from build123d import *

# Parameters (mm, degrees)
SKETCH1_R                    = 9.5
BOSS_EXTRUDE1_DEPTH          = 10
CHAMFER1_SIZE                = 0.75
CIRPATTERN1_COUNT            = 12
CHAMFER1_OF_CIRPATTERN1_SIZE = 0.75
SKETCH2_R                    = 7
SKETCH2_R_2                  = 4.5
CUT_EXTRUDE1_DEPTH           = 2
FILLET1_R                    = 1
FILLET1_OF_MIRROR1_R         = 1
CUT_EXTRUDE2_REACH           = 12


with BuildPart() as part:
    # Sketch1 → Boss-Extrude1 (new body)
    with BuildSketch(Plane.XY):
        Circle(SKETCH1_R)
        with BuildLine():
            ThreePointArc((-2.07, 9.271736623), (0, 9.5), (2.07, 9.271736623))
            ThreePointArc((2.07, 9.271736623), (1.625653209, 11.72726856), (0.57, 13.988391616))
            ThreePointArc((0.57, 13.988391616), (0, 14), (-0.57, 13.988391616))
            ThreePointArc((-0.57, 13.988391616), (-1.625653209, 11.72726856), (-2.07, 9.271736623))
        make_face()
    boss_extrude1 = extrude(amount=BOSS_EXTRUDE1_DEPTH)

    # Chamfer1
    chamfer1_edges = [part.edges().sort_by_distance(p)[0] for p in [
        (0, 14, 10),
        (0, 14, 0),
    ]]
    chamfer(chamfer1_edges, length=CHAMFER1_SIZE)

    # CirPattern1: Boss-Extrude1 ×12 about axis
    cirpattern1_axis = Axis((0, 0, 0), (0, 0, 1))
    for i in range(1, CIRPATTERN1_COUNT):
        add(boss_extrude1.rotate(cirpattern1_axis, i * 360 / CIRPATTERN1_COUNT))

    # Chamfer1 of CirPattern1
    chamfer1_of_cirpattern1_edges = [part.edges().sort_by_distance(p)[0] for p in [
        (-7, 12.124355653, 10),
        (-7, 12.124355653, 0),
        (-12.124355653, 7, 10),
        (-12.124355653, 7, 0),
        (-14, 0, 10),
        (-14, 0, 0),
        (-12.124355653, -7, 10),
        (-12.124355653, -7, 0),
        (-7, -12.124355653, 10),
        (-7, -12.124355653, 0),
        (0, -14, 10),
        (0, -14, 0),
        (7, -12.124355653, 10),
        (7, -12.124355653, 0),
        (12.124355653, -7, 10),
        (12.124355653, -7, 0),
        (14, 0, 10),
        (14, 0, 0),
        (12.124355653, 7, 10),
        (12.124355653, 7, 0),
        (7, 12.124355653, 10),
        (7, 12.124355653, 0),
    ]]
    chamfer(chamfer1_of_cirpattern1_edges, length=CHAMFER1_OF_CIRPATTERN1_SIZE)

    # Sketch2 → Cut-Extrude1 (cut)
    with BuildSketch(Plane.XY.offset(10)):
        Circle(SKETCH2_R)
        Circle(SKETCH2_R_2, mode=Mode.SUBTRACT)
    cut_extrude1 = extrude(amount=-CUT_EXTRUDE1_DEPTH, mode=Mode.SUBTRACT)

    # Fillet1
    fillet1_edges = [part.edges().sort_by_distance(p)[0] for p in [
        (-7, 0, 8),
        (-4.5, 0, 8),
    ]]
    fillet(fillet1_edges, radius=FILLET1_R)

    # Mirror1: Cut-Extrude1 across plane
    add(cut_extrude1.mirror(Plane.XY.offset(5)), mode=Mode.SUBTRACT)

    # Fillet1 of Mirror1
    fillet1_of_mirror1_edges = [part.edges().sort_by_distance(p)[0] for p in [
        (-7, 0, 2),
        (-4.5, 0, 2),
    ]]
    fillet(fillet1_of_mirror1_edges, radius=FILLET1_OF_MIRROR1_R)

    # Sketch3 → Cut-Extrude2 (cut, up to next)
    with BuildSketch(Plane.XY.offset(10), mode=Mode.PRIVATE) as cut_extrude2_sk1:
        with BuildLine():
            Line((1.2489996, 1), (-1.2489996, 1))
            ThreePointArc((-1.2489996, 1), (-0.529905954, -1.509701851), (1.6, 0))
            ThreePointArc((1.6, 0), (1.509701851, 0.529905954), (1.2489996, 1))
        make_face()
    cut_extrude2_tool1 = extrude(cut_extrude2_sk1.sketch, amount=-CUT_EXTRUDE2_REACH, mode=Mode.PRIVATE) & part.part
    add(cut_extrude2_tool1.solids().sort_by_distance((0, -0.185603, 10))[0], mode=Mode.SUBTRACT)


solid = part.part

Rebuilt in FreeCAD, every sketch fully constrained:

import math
import FreeCAD as App
import Part
import Sketcher
from FreeCAD import Vector


def edges_at(feature, points):
    """Names of the edges that pass closest to the given points."""
    edges = feature.Shape.Edges
    near = lambda p: min(range(len(edges)), key=lambda i: edges[i].distToShape(Part.Vertex(*p))[0])
    return sorted({f"Edge{near(p) + 1}" for p in points})

doc = App.newDocument("Part")
body = doc.addObject("PartDesign::Body", "Body")

sketch1 = body.newObject("Sketcher::SketchObject", "Sketch")
sketch1.AttachmentSupport = (doc.getObject("XY_Plane"), [""])
sketch1.MapMode = "FlatFace"
sketch1.addGeometry(Part.ArcOfCircle(Part.Circle(Vector(-7.625243, 8.78528, 0), Vector(0, 0, 1), 9.70744), math.radians(2.872394), math.radians(32.411223)), False)
sketch1.addGeometry(Part.ArcOfCircle(Part.Circle(Vector(0, 0, 0), Vector(0, 0, 1), 14), math.radians(87.666598), math.radians(92.333402)), False)
sketch1.addGeometry(Part.ArcOfCircle(Part.Circle(Vector(7.625243, 8.78528, 0), Vector(0, 0, 1), 9.70744), math.radians(147.588777), math.radians(177.127606)), False)
sketch1.addGeometry(Part.ArcOfCircle(Part.Circle(Vector(0, 0, 0), Vector(0, 0, 1), 9.5), math.radians(102.585411), math.radians(437.414589)), False)
sketch1.addConstraint(Sketcher.Constraint("Coincident", 0, 2, 1, 1))
sketch1.addConstraint(Sketcher.Constraint("Coincident", 1, 2, 2, 1))
sketch1.addConstraint(Sketcher.Constraint("Coincident", 2, 2, 3, 1))
sketch1.addConstraint(Sketcher.Constraint("Coincident", 3, 2, 0, 1))
sketch1.addConstraint(Sketcher.Constraint("Coincident", 1, 3, -1, 1))
sketch1.addConstraint(Sketcher.Constraint("Coincident", 3, 3, -1, 1))
sketch1.addConstraint(Sketcher.Constraint("Equal", 0, 2))
sketch1.addConstraint(Sketcher.Constraint("Symmetric", 0, 3, 2, 3, -2))
sketch1.addConstraint(Sketcher.Constraint("Radius", 1, 14.0))
sketch1.addConstraint(Sketcher.Constraint("Radius", 3, 9.5))
sketch1.addConstraint(Sketcher.Constraint("DistanceX", 2, 2, 1, 2, 1.5))
sketch1.addConstraint(Sketcher.Constraint("DistanceX", -1, 1, 0, 2, 0.57))
sketch1.addConstraint(Sketcher.Constraint("Radius", 0, 9.70744))
pad1 = body.newObject("PartDesign::Pad", "Pad")
pad1.Profile = sketch1
pad1.Length = 10
doc.recompute()

chamfer = body.newObject("PartDesign::Chamfer", "Chamfer")
chamfer.Base = (pad1, edges_at(pad1, [(0, 14, 10), (0, 14, 0)]))
chamfer.Size = 0.75
doc.recompute()

polarpattern = body.newObject("PartDesign::PolarPattern", "PolarPattern")
polarpattern.Originals = [pad1]
polarpattern.Axis = (doc.getObject("Z_Axis"), [""])
polarpattern.Angle = 360
polarpattern.Occurrences = 12
body.Tip = polarpattern
doc.recompute()

chamfer2 = body.newObject("PartDesign::Chamfer", "Chamfer001")
chamfer2.Base = (polarpattern, edges_at(polarpattern, [
    (-7, 12.124, 10),
    (-7, 12.124, 0),
    (-12.124, 7, 10),
    (-12.124, 7, 0),
    (-14, 0, 10),
    (-14, 0, 0),
    (-12.124, -7, 10),
    (-12.124, -7, 0),
    (-7, -12.124, 10),
    (-7, -12.124, 0),
    (0, -14, 10),
    (0, -14, 0),
    (7, -12.124, 10),
    (7, -12.124, 0),
    (12.124, -7, 10),
    (12.124, -7, 0),
    (14, 0, 10),
    (14, 0, 0),
    (12.124, 7, 10),
    (12.124, 7, 0),
    (7, 12.124, 10),
    (7, 12.124, 0),
]))
chamfer2.Size = 0.75

sketch2 = body.newObject("Sketcher::SketchObject", "Sketch001")
sketch2.AttachmentSupport = (doc.getObject("XY_Plane"), [""])
sketch2.MapMode = "FlatFace"
sketch2.AttachmentOffset = App.Placement(Vector(0, 0, 10), App.Rotation())
sketch2.addGeometry(Part.Circle(Vector(0, 0, 0), Vector(0, 0, 1), 7), False)
sketch2.addGeometry(Part.Circle(Vector(0, 0, 0), Vector(0, 0, 1), 4.5), False)
sketch2.addConstraint(Sketcher.Constraint("Coincident", 0, 3, -1, 1))
sketch2.addConstraint(Sketcher.Constraint("Coincident", 1, 3, -1, 1))
sketch2.addConstraint(Sketcher.Constraint("Diameter", 0, 14.0))
sketch2.addConstraint(Sketcher.Constraint("Diameter", 1, 9.0))
pocket1 = body.newObject("PartDesign::Pocket", "Pocket")
pocket1.Profile = sketch2
pocket1.Length = 2
doc.recompute()

fillet = body.newObject("PartDesign::Fillet", "Fillet")
fillet.Base = (pocket1, edges_at(pocket1, [(-7, 0, 8), (-4.5, 0, 8)]))
fillet.Radius = 1
doc.recompute()

datumplane = body.newObject("PartDesign::Plane", "DatumPlane")
datumplane.AttachmentSupport = (doc.getObject("XY_Plane"), [""])
datumplane.MapMode = "FlatFace"
datumplane.AttachmentOffset = App.Placement(Vector(0, 0, 5), App.Rotation())
mirrored = body.newObject("PartDesign::Mirrored", "Mirrored")
mirrored.Originals = [pocket1]
mirrored.MirrorPlane = (datumplane, [""])
body.Tip = mirrored
doc.recompute()

fillet2 = body.newObject("PartDesign::Fillet", "Fillet001")
fillet2.Base = (mirrored, edges_at(mirrored, [(-7, 0, 2), (-4.5, 0, 2)]))
fillet2.Radius = 1

sketch3 = body.newObject("Sketcher::SketchObject", "Sketch002")
sketch3.AttachmentSupport = (doc.getObject("XY_Plane"), [""])
sketch3.MapMode = "FlatFace"
sketch3.AttachmentOffset = App.Placement(Vector(0, 0, 10), App.Rotation())
sketch3.addGeometry(Part.LineSegment(Vector(1.249, 1, 0), Vector(-1.249, 1, 0)), False)
sketch3.addGeometry(Part.ArcOfCircle(Part.Circle(Vector(0, 0, 0), Vector(0, 0, 1), 1.6), math.radians(141.317813), math.radians(360)), False)
sketch3.addGeometry(Part.ArcOfCircle(Part.Circle(Vector(0, 0, 0), Vector(0, 0, 1), 1.6), math.radians(0), math.radians(38.682187)), False)
sketch3.addConstraint(Sketcher.Constraint("Coincident", 0, 2, 1, 1))
sketch3.addConstraint(Sketcher.Constraint("Tangent", 1, 2, 2, 1))
sketch3.addConstraint(Sketcher.Constraint("Coincident", 2, 2, 0, 1))
sketch3.addConstraint(Sketcher.Constraint("Horizontal", 0))
sketch3.addConstraint(Sketcher.Constraint("Coincident", 1, 3, -1, 1))
sketch3.addConstraint(Sketcher.Constraint("Equal", 1, 2))
sketch3.addConstraint(Sketcher.Constraint("PointOnObject", 1, 2, -1))
sketch3.addConstraint(Sketcher.Constraint("Radius", 1, 1.6))
sketch3.addConstraint(Sketcher.Constraint("DistanceY", -1, 1, 0, 2, 1.0))
pocket2 = body.newObject("PartDesign::Pocket", "Pocket001")
pocket2.Profile = sketch3
pocket2.Type = "UpToFirst"

doc.recompute()
